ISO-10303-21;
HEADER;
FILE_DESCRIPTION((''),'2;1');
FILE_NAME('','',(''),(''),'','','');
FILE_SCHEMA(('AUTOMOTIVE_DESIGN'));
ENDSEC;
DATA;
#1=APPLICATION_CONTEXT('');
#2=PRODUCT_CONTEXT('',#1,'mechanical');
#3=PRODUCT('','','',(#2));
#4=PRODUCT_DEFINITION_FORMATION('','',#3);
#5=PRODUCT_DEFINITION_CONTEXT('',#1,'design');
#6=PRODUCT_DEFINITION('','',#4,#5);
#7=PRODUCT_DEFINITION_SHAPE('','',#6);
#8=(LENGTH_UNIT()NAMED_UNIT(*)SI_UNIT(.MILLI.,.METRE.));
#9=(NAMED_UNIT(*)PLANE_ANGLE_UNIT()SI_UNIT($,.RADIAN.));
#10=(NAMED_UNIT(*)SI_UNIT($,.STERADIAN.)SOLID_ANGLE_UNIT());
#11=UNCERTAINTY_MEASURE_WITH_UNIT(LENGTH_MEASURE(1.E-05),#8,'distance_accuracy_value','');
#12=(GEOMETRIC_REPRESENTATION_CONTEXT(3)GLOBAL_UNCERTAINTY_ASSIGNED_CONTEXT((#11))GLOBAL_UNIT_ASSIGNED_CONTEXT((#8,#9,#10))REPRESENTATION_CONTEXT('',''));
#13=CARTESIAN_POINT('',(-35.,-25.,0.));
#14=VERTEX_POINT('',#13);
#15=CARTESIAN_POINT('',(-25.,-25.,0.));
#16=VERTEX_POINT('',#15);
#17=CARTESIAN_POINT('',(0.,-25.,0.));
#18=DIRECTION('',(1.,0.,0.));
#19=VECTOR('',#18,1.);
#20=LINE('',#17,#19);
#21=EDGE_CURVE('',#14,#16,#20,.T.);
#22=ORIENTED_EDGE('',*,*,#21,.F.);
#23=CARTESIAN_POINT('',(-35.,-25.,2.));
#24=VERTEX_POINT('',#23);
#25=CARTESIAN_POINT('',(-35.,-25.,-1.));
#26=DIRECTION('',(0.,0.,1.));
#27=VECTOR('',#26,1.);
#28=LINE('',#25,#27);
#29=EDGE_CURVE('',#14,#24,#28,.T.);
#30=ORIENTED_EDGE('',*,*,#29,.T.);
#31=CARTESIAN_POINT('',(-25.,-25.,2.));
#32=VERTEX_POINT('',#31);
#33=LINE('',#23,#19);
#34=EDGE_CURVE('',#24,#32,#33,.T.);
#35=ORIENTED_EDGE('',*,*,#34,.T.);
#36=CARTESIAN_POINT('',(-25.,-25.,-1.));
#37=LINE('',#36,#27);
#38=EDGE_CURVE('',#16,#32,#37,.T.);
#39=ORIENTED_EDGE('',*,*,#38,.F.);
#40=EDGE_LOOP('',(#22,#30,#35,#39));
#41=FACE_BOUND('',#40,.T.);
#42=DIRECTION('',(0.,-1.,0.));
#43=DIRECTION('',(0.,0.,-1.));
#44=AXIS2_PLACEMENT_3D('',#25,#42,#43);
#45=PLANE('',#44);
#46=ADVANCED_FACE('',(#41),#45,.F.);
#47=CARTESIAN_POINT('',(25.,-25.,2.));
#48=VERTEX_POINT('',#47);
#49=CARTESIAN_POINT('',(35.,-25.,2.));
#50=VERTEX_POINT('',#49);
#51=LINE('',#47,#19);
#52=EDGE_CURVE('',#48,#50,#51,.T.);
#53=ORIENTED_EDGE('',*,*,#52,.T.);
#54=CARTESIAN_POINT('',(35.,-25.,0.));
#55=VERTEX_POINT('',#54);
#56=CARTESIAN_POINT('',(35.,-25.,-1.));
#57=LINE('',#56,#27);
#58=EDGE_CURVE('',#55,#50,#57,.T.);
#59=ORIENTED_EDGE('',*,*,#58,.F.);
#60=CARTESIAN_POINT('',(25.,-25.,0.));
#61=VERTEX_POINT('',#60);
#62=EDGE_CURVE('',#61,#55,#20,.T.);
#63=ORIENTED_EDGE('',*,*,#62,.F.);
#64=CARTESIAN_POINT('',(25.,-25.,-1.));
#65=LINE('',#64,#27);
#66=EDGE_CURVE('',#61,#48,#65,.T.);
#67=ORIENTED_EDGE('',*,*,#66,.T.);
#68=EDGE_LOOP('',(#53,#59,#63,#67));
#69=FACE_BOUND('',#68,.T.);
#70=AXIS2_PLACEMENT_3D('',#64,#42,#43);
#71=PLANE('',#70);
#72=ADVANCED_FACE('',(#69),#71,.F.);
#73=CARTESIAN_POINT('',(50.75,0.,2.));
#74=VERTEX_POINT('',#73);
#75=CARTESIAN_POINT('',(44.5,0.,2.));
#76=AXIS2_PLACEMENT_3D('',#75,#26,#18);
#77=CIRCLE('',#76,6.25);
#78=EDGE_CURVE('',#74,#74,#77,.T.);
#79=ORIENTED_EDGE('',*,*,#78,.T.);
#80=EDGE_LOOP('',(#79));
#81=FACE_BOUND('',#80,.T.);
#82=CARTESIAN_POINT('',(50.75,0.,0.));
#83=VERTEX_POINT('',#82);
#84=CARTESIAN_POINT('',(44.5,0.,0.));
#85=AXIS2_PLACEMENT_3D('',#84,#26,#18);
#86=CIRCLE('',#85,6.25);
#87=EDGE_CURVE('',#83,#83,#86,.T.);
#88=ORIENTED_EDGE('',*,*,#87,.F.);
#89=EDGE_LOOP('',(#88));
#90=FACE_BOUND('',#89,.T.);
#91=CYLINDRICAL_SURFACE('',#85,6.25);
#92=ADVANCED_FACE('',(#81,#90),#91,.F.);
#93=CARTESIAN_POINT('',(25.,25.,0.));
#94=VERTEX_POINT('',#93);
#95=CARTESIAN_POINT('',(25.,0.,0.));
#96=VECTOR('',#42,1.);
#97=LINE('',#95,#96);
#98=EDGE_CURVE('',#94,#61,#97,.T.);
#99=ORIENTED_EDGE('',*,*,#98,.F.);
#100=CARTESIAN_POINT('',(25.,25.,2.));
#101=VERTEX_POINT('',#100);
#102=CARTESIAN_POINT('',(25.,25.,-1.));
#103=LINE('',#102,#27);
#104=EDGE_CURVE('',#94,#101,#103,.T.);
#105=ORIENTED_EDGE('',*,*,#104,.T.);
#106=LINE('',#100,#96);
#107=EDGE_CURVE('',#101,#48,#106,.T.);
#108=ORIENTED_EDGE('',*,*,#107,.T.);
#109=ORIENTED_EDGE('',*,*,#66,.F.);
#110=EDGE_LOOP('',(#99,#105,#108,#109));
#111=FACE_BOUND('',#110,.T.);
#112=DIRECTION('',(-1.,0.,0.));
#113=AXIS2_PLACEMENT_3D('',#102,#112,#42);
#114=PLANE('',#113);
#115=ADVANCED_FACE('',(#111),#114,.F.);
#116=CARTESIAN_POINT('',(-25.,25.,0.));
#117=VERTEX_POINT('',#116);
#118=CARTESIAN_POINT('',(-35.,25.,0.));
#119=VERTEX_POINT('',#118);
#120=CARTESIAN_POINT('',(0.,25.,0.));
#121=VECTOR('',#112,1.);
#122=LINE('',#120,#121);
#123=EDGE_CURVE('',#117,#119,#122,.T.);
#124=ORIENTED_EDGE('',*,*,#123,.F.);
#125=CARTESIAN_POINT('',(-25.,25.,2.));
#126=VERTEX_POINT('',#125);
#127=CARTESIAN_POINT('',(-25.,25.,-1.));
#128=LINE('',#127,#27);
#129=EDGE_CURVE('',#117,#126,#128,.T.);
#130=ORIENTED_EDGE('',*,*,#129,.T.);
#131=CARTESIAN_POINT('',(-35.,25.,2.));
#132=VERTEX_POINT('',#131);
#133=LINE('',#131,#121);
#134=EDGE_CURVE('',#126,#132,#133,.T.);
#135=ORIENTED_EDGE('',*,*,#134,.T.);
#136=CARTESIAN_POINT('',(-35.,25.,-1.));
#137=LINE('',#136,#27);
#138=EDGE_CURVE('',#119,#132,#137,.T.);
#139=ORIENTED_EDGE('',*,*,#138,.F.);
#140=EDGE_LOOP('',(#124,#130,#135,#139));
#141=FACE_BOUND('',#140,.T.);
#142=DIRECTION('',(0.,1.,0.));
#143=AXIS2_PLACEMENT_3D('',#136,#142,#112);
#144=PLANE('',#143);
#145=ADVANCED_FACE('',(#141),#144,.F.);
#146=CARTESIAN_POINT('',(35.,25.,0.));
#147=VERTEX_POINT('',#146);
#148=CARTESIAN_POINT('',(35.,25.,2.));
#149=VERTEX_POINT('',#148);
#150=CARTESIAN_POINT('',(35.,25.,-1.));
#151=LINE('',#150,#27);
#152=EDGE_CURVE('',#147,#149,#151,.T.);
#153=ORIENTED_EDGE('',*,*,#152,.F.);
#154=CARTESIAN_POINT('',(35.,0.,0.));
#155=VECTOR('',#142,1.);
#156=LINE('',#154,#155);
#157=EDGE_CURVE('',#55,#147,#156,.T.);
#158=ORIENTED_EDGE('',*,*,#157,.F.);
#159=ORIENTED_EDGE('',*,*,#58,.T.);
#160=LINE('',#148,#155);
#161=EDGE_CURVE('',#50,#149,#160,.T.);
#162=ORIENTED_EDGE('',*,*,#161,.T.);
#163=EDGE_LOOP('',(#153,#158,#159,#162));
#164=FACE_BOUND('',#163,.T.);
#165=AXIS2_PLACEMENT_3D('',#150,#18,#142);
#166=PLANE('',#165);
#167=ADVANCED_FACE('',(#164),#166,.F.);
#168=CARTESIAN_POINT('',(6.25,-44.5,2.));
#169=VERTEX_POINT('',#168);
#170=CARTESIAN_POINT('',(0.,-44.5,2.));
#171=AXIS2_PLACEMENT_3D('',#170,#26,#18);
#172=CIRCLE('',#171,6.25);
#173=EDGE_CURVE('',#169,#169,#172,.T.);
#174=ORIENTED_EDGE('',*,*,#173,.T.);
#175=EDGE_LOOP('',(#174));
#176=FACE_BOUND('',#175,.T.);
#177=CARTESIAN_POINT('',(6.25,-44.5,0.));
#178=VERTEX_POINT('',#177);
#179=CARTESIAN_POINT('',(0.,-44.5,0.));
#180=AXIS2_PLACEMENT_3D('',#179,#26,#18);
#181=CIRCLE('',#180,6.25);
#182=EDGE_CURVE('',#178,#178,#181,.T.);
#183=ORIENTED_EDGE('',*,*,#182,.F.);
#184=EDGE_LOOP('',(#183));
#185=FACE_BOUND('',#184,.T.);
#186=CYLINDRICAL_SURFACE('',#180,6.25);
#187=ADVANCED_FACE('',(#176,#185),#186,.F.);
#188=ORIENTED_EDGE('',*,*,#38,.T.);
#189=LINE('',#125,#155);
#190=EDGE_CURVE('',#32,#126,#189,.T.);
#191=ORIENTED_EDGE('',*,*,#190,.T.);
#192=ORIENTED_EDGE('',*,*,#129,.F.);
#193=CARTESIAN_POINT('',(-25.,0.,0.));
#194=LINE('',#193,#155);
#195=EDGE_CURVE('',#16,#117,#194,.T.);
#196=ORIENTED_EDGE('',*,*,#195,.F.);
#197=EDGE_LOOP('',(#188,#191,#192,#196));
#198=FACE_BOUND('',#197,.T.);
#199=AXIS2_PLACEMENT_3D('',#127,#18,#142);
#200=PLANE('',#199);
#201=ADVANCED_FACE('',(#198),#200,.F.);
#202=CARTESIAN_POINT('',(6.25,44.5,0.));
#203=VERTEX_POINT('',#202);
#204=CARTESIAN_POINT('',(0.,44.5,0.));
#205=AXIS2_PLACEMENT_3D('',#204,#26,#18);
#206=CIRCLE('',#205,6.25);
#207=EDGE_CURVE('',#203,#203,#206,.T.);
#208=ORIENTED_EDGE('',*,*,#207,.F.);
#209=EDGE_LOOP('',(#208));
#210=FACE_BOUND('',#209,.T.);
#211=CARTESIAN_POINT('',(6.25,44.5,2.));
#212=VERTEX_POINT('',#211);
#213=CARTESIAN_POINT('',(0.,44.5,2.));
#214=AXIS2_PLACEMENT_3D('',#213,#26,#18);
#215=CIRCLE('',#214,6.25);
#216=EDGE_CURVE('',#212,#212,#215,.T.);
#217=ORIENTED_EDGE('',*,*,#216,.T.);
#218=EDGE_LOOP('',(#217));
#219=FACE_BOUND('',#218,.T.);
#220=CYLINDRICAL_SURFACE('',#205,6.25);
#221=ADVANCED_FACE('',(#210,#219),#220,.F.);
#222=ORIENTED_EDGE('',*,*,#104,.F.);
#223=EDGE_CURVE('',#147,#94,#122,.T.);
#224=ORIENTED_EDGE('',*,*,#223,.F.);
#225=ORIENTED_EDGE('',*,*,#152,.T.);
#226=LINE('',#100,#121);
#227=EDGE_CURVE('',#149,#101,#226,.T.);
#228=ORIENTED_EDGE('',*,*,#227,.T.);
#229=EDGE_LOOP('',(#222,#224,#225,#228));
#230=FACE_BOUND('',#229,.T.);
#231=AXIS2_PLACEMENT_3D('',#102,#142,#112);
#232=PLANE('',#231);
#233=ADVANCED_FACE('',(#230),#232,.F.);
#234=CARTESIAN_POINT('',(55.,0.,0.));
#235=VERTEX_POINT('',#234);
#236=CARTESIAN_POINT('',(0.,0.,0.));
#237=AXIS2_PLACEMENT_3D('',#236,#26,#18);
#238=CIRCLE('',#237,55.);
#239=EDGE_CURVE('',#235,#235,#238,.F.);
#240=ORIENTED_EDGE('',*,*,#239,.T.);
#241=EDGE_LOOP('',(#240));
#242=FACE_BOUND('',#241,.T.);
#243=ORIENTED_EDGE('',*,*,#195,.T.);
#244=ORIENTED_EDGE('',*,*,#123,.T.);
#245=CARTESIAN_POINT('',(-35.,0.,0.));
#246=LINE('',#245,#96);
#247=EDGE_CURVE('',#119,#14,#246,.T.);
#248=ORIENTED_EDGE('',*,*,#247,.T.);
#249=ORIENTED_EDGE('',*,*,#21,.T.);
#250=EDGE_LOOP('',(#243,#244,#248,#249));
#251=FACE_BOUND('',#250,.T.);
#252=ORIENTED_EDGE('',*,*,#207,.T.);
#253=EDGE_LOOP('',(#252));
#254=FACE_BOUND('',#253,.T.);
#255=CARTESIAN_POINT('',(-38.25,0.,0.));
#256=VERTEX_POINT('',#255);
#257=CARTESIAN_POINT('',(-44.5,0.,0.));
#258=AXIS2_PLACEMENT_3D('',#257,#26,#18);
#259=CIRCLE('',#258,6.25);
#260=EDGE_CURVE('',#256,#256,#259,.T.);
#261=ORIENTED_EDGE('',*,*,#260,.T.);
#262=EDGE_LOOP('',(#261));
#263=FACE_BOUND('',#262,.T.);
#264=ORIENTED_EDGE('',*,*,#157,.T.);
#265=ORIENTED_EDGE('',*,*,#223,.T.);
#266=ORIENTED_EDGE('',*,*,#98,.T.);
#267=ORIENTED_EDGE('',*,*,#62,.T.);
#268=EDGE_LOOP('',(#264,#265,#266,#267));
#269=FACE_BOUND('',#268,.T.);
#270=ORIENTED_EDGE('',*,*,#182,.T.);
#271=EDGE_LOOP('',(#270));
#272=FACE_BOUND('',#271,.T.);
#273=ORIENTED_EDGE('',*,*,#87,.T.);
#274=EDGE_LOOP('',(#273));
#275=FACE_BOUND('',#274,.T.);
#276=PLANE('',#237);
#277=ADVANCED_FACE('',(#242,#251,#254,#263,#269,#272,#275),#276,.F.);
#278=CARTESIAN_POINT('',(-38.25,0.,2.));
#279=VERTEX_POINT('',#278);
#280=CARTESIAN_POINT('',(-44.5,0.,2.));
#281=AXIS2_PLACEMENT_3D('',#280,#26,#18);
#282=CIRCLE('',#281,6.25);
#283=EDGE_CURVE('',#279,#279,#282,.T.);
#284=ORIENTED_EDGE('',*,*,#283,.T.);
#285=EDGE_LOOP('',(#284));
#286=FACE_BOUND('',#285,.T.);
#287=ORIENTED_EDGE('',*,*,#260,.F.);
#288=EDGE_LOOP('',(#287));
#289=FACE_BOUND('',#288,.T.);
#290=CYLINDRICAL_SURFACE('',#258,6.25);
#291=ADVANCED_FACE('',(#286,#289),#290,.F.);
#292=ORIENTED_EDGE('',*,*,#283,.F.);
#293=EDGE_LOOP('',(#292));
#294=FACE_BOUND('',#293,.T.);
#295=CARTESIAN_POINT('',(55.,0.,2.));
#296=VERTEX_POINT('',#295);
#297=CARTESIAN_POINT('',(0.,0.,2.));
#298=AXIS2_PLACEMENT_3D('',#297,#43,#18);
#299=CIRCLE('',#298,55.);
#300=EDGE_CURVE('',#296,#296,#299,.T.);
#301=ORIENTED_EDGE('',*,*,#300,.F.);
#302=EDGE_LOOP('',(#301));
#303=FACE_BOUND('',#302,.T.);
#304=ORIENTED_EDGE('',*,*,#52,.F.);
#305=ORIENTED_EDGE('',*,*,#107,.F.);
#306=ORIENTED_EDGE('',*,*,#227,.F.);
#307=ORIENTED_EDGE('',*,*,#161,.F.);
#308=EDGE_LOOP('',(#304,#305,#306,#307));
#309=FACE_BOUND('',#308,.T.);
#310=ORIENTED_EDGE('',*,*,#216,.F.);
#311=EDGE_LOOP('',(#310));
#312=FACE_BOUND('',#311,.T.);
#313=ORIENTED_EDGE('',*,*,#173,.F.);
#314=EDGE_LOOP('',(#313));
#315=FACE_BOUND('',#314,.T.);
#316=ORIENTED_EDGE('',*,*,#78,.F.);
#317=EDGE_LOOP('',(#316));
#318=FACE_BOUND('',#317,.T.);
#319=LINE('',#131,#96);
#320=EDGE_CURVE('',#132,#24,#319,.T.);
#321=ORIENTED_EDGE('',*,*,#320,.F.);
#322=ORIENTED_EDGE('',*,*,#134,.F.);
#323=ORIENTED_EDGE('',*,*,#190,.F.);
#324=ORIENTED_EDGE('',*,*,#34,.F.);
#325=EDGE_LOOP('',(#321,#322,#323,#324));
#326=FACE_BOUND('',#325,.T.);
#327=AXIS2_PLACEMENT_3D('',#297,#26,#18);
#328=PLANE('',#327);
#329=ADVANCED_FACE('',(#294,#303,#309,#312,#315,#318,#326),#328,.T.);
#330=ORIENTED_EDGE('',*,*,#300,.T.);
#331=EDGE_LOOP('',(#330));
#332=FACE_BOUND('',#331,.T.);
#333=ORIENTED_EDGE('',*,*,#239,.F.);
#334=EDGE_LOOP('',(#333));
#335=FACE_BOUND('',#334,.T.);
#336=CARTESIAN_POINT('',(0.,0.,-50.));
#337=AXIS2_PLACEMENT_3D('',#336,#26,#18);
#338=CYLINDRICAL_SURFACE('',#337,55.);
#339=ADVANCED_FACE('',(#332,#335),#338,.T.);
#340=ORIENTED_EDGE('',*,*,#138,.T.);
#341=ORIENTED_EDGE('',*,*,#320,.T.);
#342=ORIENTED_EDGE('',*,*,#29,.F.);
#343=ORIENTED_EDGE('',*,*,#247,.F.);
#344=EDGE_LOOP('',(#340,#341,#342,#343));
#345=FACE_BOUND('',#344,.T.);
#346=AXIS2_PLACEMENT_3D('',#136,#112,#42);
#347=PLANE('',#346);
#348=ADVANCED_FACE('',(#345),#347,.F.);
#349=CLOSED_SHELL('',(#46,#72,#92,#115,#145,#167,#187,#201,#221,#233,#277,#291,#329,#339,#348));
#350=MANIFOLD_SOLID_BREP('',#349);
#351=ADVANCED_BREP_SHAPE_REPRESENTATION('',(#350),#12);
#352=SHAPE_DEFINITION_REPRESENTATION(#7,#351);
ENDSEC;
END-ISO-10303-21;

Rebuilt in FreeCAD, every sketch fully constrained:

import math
import FreeCAD as App
import Part
import Sketcher
from FreeCAD import Vector
Q = App.Units.Quantity


def add_polygon(sketch, points):
    """Adds a closed chain of lines whose ends are joined by coincident constraints."""
    first, n = sketch.GeometryCount, len(points)
    for a, b in zip(points, points[1:] + points[:1]):
        sketch.addGeometry(Part.LineSegment(App.Vector(*a, 0), App.Vector(*b, 0)), False)
    for i in range(n):
        sketch.addConstraint(Sketcher.Constraint("Coincident", first + i, 2, first + (i + 1) % n, 1))

doc = App.newDocument("Part")
body = doc.addObject("PartDesign::Body", "Body")

# Sketch on XY plane
sketch1 = body.newObject("Sketcher::SketchObject", "Sketch")
sketch1.AttachmentSupport = (doc.getObject("XY_Plane"), [""])
sketch1.MapMode = "FlatFace"
sketch1.addGeometry(Part.Circle(Vector(0, 0, 0), Vector(0, 0, 1), 59), False)
sketch1.addConstraint([
    Sketcher.Constraint("Coincident", 0, 3, -1, 1),
    Sketcher.Constraint("Diameter", 0, Q("118 mm")),
])
pad1 = body.newObject("PartDesign::Pad", "Pad")
pad1.Profile = sketch1
pad1.Length = 2

# Sketch on XY plane
sketch2 = body.newObject("Sketcher::SketchObject", "Sketch001")
sketch2.AttachmentSupport = (doc.getObject("XY_Plane"), [""])
sketch2.MapMode = "FlatFace"
sketch2.AttachmentOffset = App.Placement(Vector(0, 0, 2), App.Rotation())
sketch2.addGeometry([
    Part.Circle(Vector(-22.5, 27.5, 0), Vector(0, 0, 1), 1.375),
    Part.Circle(Vector(22.5, 27.5, 0), Vector(0, 0, 1), 1.375),
    Part.Circle(Vector(22.5, -27.5, 0), Vector(0, 0, 1), 1.375),
    Part.Circle(Vector(-22.5, -27.5, 0), Vector(0, 0, 1), 1.375),
], False)
sketch2.addConstraint([
    Sketcher.Constraint("Equal", 0, 1),
    Sketcher.Constraint("Equal", 1, 2),
    Sketcher.Constraint("Equal", 2, 3),
    Sketcher.Constraint("Symmetric", 0, 3, 2, 3, -1, 1),
    Sketcher.Constraint("Symmetric", 1, 3, 3, 3, -1, 1),
    Sketcher.Constraint("Symmetric", 0, 3, 1, 3, -2),
    Sketcher.Constraint("Diameter", 0, Q("2.75 mm")),
    Sketcher.Constraint("DistanceX", 0, 3, 1, 3, Q("45 mm")),
    Sketcher.Constraint("DistanceY", 2, 3, 1, 3, Q("55 mm")),
])
pad2 = body.newObject("PartDesign::Pad", "Pad001")
pad2.Profile = sketch2
pad2.Length = 7

# Sketch on XY plane
sketch3 = body.newObject("Sketcher::SketchObject", "Sketch002")
sketch3.AttachmentSupport = (doc.getObject("XY_Plane"), [""])
sketch3.MapMode = "FlatFace"
sketch3.AttachmentOffset = App.Placement(Vector(0, 0, 2), App.Rotation())
sketch3.addGeometry([
    Part.Circle(Vector(-22.5, 27.5, 0), Vector(0, 0, 1), 2.375),
    Part.Circle(Vector(22.5, 27.5, 0), Vector(0, 0, 1), 2.375),
    Part.Circle(Vector(-22.5, -27.5, 0), Vector(0, 0, 1), 2.375),
    Part.Circle(Vector(22.5, -27.5, 0), Vector(0, 0, 1), 2.375),
], False)
sketch3.addConstraint([
    Sketcher.Constraint("Equal", 0, 1),
    Sketcher.Constraint("Equal", 1, 2),
    Sketcher.Constraint("Equal", 2, 3),
    Sketcher.Constraint("Symmetric", 1, 3, 2, 3, -1, 1),
    Sketcher.Constraint("Symmetric", 0, 3, 3, 3, -1, 1),
    Sketcher.Constraint("Symmetric", 0, 3, 1, 3, -2),
    Sketcher.Constraint("Diameter", 0, Q("4.75 mm")),
    Sketcher.Constraint("DistanceX", 0, 3, 1, 3, Q("45 mm")),
    Sketcher.Constraint("DistanceY", 2, 3, 0, 3, Q("55 mm")),
])
pad3 = body.newObject("PartDesign::Pad", "Pad002")
pad3.Profile = sketch3
pad3.Length = 2

# Sketch on XY plane
sketch4 = body.newObject("Sketcher::SketchObject", "Sketch003")
sketch4.AttachmentSupport = (doc.getObject("XY_Plane"), [""])
sketch4.MapMode = "FlatFace"
sketch4.AttachmentOffset = App.Placement(Vector(0, 0, 2), App.Rotation())
sketch4.addGeometry([
    Part.ArcOfCircle(Part.Circle(Vector(0, 0, 0), Vector(0, 0, 1), 56), math.radians(85.138595), math.radians(94.861405)),  # 0
    Part.LineSegment(Vector(4.745763, 55.798546, 0), Vector(5, 58.787754, 0)),  # 1
    Part.ArcOfCircle(Part.Circle(Vector(0, 0, 0), Vector(0, 0, 1), 59), math.radians(85.138595), math.radians(94.861405)),  # 2
    Part.LineSegment(Vector(-5, 58.787754, 0), Vector(-4.745763, 55.798546, 0)),  # 3
    Part.LineSegment(Vector(-55.798546, 4.745763, 0), Vector(-58.787754, 5, 0)),  # 4
    Part.ArcOfCircle(Part.Circle(Vector(0, 0, 0), Vector(0, 0, 1), 59), math.radians(175.138595), math.radians(184.861405)),  # 5
    Part.LineSegment(Vector(-58.787754, -5, 0), Vector(-55.798546, -4.745763, 0)),  # 6
    Part.ArcOfCircle(Part.Circle(Vector(0, 0, 0), Vector(0, 0, 1), 56), math.radians(175.138595), math.radians(184.861405)),  # 7
    Part.ArcOfCircle(Part.Circle(Vector(0, 0, 0), Vector(0, 0, 1), 59), math.radians(-4.861405), math.radians(4.861405)),  # 8
    Part.LineSegment(Vector(58.787754, 5, 0), Vector(55.798546, 4.745763, 0)),  # 9
    Part.ArcOfCircle(Part.Circle(Vector(0, 0, 0), Vector(0, 0, 1), 56), math.radians(-4.861405), math.radians(4.861405)),  # 10
    Part.LineSegment(Vector(55.798546, -4.745763, 0), Vector(58.787754, -5, 0)),  # 11
    Part.ArcOfCircle(Part.Circle(Vector(0, 0, 0), Vector(0, 0, 1), 56), math.radians(-94.861405), math.radians(-85.138595)),  # 12
    Part.LineSegment(Vector(-4.745763, -55.798546, 0), Vector(-5, -58.787754, 0)),  # 13
    Part.ArcOfCircle(Part.Circle(Vector(0, 0, 0), Vector(0, 0, 1), 59), math.radians(-94.861405), math.radians(-85.138595)),  # 14
    Part.LineSegment(Vector(5, -58.787754, 0), Vector(4.745763, -55.798546, 0)),  # 15
], False)
sketch4.addConstraint([
    Sketcher.Constraint("Coincident", 0, 1, 1, 1),
    Sketcher.Constraint("Coincident", 1, 2, 2, 1),
    Sketcher.Constraint("Coincident", 2, 2, 3, 1),
    Sketcher.Constraint("Coincident", 3, 2, 0, 2),
    Sketcher.Constraint("Coincident", 4, 2, 5, 1),
    Sketcher.Constraint("Coincident", 5, 2, 6, 1),
    Sketcher.Constraint("Coincident", 6, 2, 7, 2),
    Sketcher.Constraint("Coincident", 7, 1, 4, 1),
    Sketcher.Constraint("Coincident", 8, 2, 9, 1),
    Sketcher.Constraint("Coincident", 9, 2, 10, 2),
    Sketcher.Constraint("Coincident", 10, 1, 11, 1),
    Sketcher.Constraint("Coincident", 11, 2, 8, 1),
    Sketcher.Constraint("Coincident", 12, 1, 13, 1),
    Sketcher.Constraint("Coincident", 13, 2, 14, 1),
    Sketcher.Constraint("Coincident", 14, 2, 15, 1),
    Sketcher.Constraint("Coincident", 15, 2, 12, 2),
    Sketcher.Constraint("Coincident", 0, 3, -1, 1),
    Sketcher.Constraint("Coincident", 2, 3, -1, 1),
    Sketcher.Constraint("Coincident", 5, 3, -1, 1),
    Sketcher.Constraint("Coincident", 7, 3, -1, 1),
    Sketcher.Constraint("Coincident", 8, 3, -1, 1),
    Sketcher.Constraint("Coincident", 10, 3, -1, 1),
    Sketcher.Constraint("Coincident", 12, 3, -1, 1),
    Sketcher.Constraint("Coincident", 14, 3, -1, 1),
    Sketcher.Constraint("Equal", 2, 5),
    Sketcher.Constraint("Equal", 0, 7),
    Sketcher.Constraint("Equal", 5, 8),
    Sketcher.Constraint("Equal", 7, 10),
    Sketcher.Constraint("Equal", 10, 12),
    Sketcher.Constraint("Equal", 8, 14),
    Sketcher.Constraint("Perpendicular", 1, 4),
    Sketcher.Constraint("Perpendicular", 3, 6),
    Sketcher.Constraint("Parallel", 6, 9),
    Sketcher.Constraint("Parallel", 4, 11),
    Sketcher.Constraint("Perpendicular", 11, 13),
    Sketcher.Constraint("Perpendicular", 9, 15),
    Sketcher.Constraint("Horizontal", 1, 2, 2, 2),
    Sketcher.Constraint("Horizontal", 0, 1, 3, 2),
    Sketcher.Constraint("Horizontal", 4, 2, 8, 2),
    Sketcher.Constraint("Horizontal", 6, 2, 10, 1),
    Sketcher.Constraint("Horizontal", 13, 2, 14, 2),
    Sketcher.Constraint("Vertical", 4, 2, 5, 2),
    Sketcher.Constraint("Vertical", 3, 2, 12, 1),
    Sketcher.Constraint("Radius", 0, Q("56 mm")),
    Sketcher.Constraint("Radius", 2, Q("59 mm")),
    Sketcher.Constraint("DistanceX", -1, 1, 1, 2, Q("5 mm")),
    Sketcher.Constraint("DistanceY", -1, 1, 4, 2, Q("5 mm")),
    Sketcher.Constraint("DistanceX", -1, 1, 0, 1, Q("4.745763 mm")),
])
pad4 = body.newObject("PartDesign::Pad", "Pad003")
pad4.Profile = sketch4
pad4.Length = 18

# Sketch on XY plane
sketch5 = body.newObject("Sketcher::SketchObject", "Sketch004")
sketch5.AttachmentSupport = (doc.getObject("XY_Plane"), [""])
sketch5.MapMode = "FlatFace"
sketch5.AttachmentOffset = App.Placement(Vector(0, 0, 2), App.Rotation())
sketch5.addGeometry(Part.Circle(Vector(-40, 0, 0), Vector(0, 0, 1), 7.5), False)
sketch5.addConstraint([
    Sketcher.Constraint("PointOnObject", 0, 3, -1),
    Sketcher.Constraint("Diameter", 0, Q("15 mm")),
    Sketcher.Constraint("DistanceX", 0, 3, -1, 1, Q("40 mm")),
])
pocket1 = body.newObject("PartDesign::Pocket", "Pocket")
pocket1.Profile = sketch5
pocket1.Length = 18

# Sketch on XY plane
sketch6 = body.newObject("Sketcher::SketchObject", "Sketch005")
sketch6.AttachmentSupport = (doc.getObject("XY_Plane"), [""])
sketch6.MapMode = "FlatFace"
sketch6.AttachmentOffset = App.Placement(Vector(0, 0, 20), App.Rotation())
sketch6.addGeometry(Part.Circle(Vector(0, 0, 0), Vector(0, 0, 1), 57.5), False)
sketch6.addConstraint([
    Sketcher.Constraint("Coincident", 0, 3, -1, 1),
    Sketcher.Constraint("Diameter", 0, Q("115 mm")),
])
pocket2 = body.newObject("PartDesign::Pocket", "Pocket001")
pocket2.Profile = sketch6
pocket2.Length = 5

# Sketch on XY plane
sketch7 = body.newObject("Sketcher::SketchObject", "Sketch006")
sketch7.AttachmentSupport = (doc.getObject("XY_Plane"), [""])
sketch7.MapMode = "FlatFace"
sketch7.addGeometry([
    Part.LineSegment(Vector(57.24333, 4.868644, 0), Vector(58.787754, 5, 0)),  # 0
    Part.ArcOfCircle(Part.Circle(Vector(0, 0, 0), Vector(0, 0, 1), 59), math.radians(-4.861405), math.radians(4.861405)),  # 1
    Part.LineSegment(Vector(58.787754, -5, 0), Vector(57.24333, -4.868644, 0)),  # 2
    Part.ArcOfCircle(Part.Circle(Vector(0, 0, 0), Vector(0, 0, 1), 57.45), math.radians(-4.861405), math.radians(4.861405)),  # 3
    Part.ArcOfCircle(Part.Circle(Vector(0, 0, 0), Vector(0, 0, 1), 59), math.radians(85.138595), math.radians(94.861405)),  # 4
    Part.LineSegment(Vector(5, 58.787754, 0), Vector(4.868644, 57.24333, 0)),  # 5
    Part.ArcOfCircle(Part.Circle(Vector(0, 0, 0), Vector(0, 0, 1), 57.45), math.radians(85.138595), math.radians(94.861405)),  # 6
    Part.LineSegment(Vector(-4.868644, 57.24333, 0), Vector(-5, 58.787754, 0)),  # 7
    Part.LineSegment(Vector(4.868644, -57.24333, 0), Vector(5, -58.787754, 0)),  # 8
    Part.ArcOfCircle(Part.Circle(Vector(0, 0, 0), Vector(0, 0, 1), 59), math.radians(-94.861405), math.radians(-85.138595)),  # 9
    Part.LineSegment(Vector(-5, -58.787754, 0), Vector(-4.868644, -57.24333, 0)),  # 10
    Part.ArcOfCircle(Part.Circle(Vector(0, 0, 0), Vector(0, 0, 1), 57.45), math.radians(-94.861405), math.radians(-85.138595)),  # 11
    Part.ArcOfCircle(Part.Circle(Vector(0, 0, 0), Vector(0, 0, 1), 59), math.radians(175.138595), math.radians(184.861405)),  # 12
    Part.LineSegment(Vector(-58.787754, 5, 0), Vector(-57.24333, 4.868644, 0)),  # 13
    Part.ArcOfCircle(Part.Circle(Vector(0, 0, 0), Vector(0, 0, 1), 57.45), math.radians(175.138595), math.radians(184.861405)),  # 14
    Part.LineSegment(Vector(-57.24333, -4.868644, 0), Vector(-58.787754, -5, 0)),  # 15
], False)
sketch7.addConstraint([
    Sketcher.Constraint("Coincident", 0, 2, 1, 2),
    Sketcher.Constraint("Coincident", 1, 1, 2, 1),
    Sketcher.Constraint("Coincident", 2, 2, 3, 1),
    Sketcher.Constraint("Coincident", 3, 2, 0, 1),
    Sketcher.Constraint("Coincident", 4, 1, 5, 1),
    Sketcher.Constraint("Coincident", 5, 2, 6, 1),
    Sketcher.Constraint("Coincident", 6, 2, 7, 1),
    Sketcher.Constraint("Coincident", 7, 2, 4, 2),
    Sketcher.Constraint("Coincident", 8, 2, 9, 2),
    Sketcher.Constraint("Coincident", 9, 1, 10, 1),
    Sketcher.Constraint("Coincident", 10, 2, 11, 1),
    Sketcher.Constraint("Coincident", 11, 2, 8, 1),
    Sketcher.Constraint("Coincident", 12, 1, 13, 1),
    Sketcher.Constraint("Coincident", 13, 2, 14, 1),
    Sketcher.Constraint("Coincident", 14, 2, 15, 1),
    Sketcher.Constraint("Coincident", 15, 2, 12, 2),
    Sketcher.Constraint("Coincident", 1, 3, -1, 1),
    Sketcher.Constraint("Coincident", 3, 3, -1, 1),
    Sketcher.Constraint("Coincident", 4, 3, -1, 1),
    Sketcher.Constraint("Coincident", 6, 3, -1, 1),
    Sketcher.Constraint("Coincident", 9, 3, -1, 1),
    Sketcher.Constraint("Coincident", 11, 3, -1, 1),
    Sketcher.Constraint("Coincident", 12, 3, -1, 1),
    Sketcher.Constraint("Coincident", 14, 3, -1, 1),
    Sketcher.Constraint("Equal", 1, 4),
    Sketcher.Constraint("Equal", 3, 6),
    Sketcher.Constraint("Equal", 4, 9),
    Sketcher.Constraint("Equal", 6, 11),
    Sketcher.Constraint("Equal", 9, 12),
    Sketcher.Constraint("Equal", 11, 14),
    Sketcher.Constraint("Perpendicular", 2, 5),
    Sketcher.Constraint("Perpendicular", 0, 7),
    Sketcher.Constraint("Parallel", 7, 8),
    Sketcher.Constraint("Parallel", 5, 10),
    Sketcher.Constraint("Perpendicular", 10, 13),
    Sketcher.Constraint("Perpendicular", 8, 15),
    Sketcher.Constraint("Horizontal", 5, 2, 6, 2),
    Sketcher.Constraint("Horizontal", 4, 1, 7, 2),
    Sketcher.Constraint("Horizontal", 8, 2, 9, 1),
    Sketcher.Constraint("Horizontal", 0, 2, 12, 1),
    Sketcher.Constraint("Horizontal", 2, 2, 14, 2),
    Sketcher.Constraint("Vertical", 0, 2, 1, 1),
    Sketcher.Constraint("Vertical", 4, 1, 8, 2),
    Sketcher.Constraint("Radius", 1, Q("59 mm")),
    Sketcher.Constraint("Radius", 3, Q("57.45 mm")),
    Sketcher.Constraint("DistanceY", -1, 1, 0, 2, Q("5 mm")),
    Sketcher.Constraint("DistanceX", -1, 1, 4, 1, Q("5 mm")),
    Sketcher.Constraint("DistanceX", -1, 1, 2, 2, Q("57.24333 mm")),
])
pocket3 = body.newObject("PartDesign::Pocket", "Pocket002")
pocket3.Profile = sketch7
pocket3.Length = 5.5
pocket3.Reversed = True

# Sketch on XY plane
sketch8 = body.newObject("Sketcher::SketchObject", "Sketch007")
sketch8.AttachmentSupport = (doc.getObject("XY_Plane"), [""])
sketch8.MapMode = "FlatFace"
sketch8.addGeometry([
    Part.Circle(Vector(0, 0, 0), Vector(0, 0, 1), 89.714021),
    Part.Circle(Vector(0, 0, 0), Vector(0, 0, 1), 57),
], False)
sketch8.addConstraint([
    Sketcher.Constraint("Coincident", 0, 3, -1, 1),
    Sketcher.Constraint("Coincident", 1, 3, -1, 1),
    Sketcher.Constraint("Diameter", 1, Q("114 mm")),
    Sketcher.Constraint("Diameter", 0, Q("179.428042 mm")),
])
pocket4 = body.newObject("PartDesign::Pocket", "Pocket003")
pocket4.Profile = sketch8
pocket4.Length = 22
pocket4.Reversed = True

# Sketch on XY plane
sketch9 = body.newObject("Sketcher::SketchObject", "Sketch008")
sketch9.AttachmentSupport = (doc.getObject("XY_Plane"), [""])
sketch9.MapMode = "FlatFace"
sketch9.AttachmentOffset = App.Placement(Vector(0, 0, 2), App.Rotation())
sketch9.addGeometry([
    Part.Circle(Vector(0, 0, 0), Vector(0, 0, 1), 62.462023),  # 0
    Part.LineSegment(Vector(56.794949, 4.830508, 0), Vector(55.798546, 4.745763, 0)),  # 1
    Part.ArcOfCircle(Part.Circle(Vector(0, 0, 0), Vector(0, 0, 1), 56), math.radians(-4.861405), math.radians(4.861405)),  # 2
    Part.LineSegment(Vector(55.798546, -4.745763, 0), Vector(56.794949, -4.830508, 0)),  # 3
    Part.ArcOfCircle(Part.Circle(Vector(0, 0, 0), Vector(0, 0, 1), 57), math.radians(-85.138595), math.radians(-4.861405)),  # 4
    Part.LineSegment(Vector(4.830508, -56.794949, 0), Vector(4.745763, -55.798546, 0)),  # 5
    Part.ArcOfCircle(Part.Circle(Vector(0, 0, 0), Vector(0, 0, 1), 56), math.radians(-94.861405), math.radians(-85.138595)),  # 6
    Part.LineSegment(Vector(-4.745763, -55.798546, 0), Vector(-4.830508, -56.794949, 0)),  # 7
    Part.ArcOfCircle(Part.Circle(Vector(0, 0, 0), Vector(0, 0, 1), 57), math.radians(-175.138595), math.radians(-94.861405)),  # 8
    Part.LineSegment(Vector(-56.794949, -4.830508, 0), Vector(-55.798546, -4.745763, 0)),  # 9
    Part.ArcOfCircle(Part.Circle(Vector(0, 0, 0), Vector(0, 0, 1), 56), math.radians(175.138595), math.radians(184.861405)),  # 10
    Part.LineSegment(Vector(-55.798546, 4.745763, 0), Vector(-56.794949, 4.830508, 0)),  # 11
    Part.ArcOfCircle(Part.Circle(Vector(0, 0, 0), Vector(0, 0, 1), 57), math.radians(94.861405), math.radians(175.138595)),  # 12
    Part.LineSegment(Vector(-4.830508, 56.794949, 0), Vector(-4.745763, 55.798546, 0)),  # 13
    Part.ArcOfCircle(Part.Circle(Vector(0, 0, 0), Vector(0, 0, 1), 56), math.radians(85.138595), math.radians(94.861405)),  # 14
    Part.LineSegment(Vector(4.745763, 55.798546, 0), Vector(4.830508, 56.794949, 0)),  # 15
    Part.ArcOfCircle(Part.Circle(Vector(0, 0, 0), Vector(0, 0, 1), 57), math.radians(4.861405), math.radians(85.138595)),  # 16
], False)
sketch9.addConstraint([
    Sketcher.Constraint("Coincident", 1, 2, 2, 2),
    Sketcher.Constraint("Coincident", 2, 1, 3, 1),
    Sketcher.Constraint("Coincident", 3, 2, 4, 2),
    Sketcher.Constraint("Coincident", 4, 1, 5, 1),
    Sketcher.Constraint("Coincident", 5, 2, 6, 2),
    Sketcher.Constraint("Coincident", 6, 1, 7, 1),
    Sketcher.Constraint("Coincident", 7, 2, 8, 2),
    Sketcher.Constraint("Coincident", 8, 1, 9, 1),
    Sketcher.Constraint("Coincident", 9, 2, 10, 2),
    Sketcher.Constraint("Coincident", 10, 1, 11, 1),
    Sketcher.Constraint("Coincident", 11, 2, 12, 2),
    Sketcher.Constraint("Coincident", 12, 1, 13, 1),
    Sketcher.Constraint("Coincident", 13, 2, 14, 2),
    Sketcher.Constraint("Coincident", 14, 1, 15, 1),
    Sketcher.Constraint("Coincident", 15, 2, 16, 2),
    Sketcher.Constraint("Coincident", 16, 1, 1, 1),
    Sketcher.Constraint("Coincident", 0, 3, -1, 1),
    Sketcher.Constraint("Coincident", 2, 3, -1, 1),
    Sketcher.Constraint("Coincident", 4, 3, -1, 1),
    Sketcher.Constraint("Coincident", 6, 3, -1, 1),
    Sketcher.Constraint("Coincident", 8, 3, -1, 1),
    Sketcher.Constraint("Coincident", 10, 3, -1, 1),
    Sketcher.Constraint("Coincident", 12, 3, -1, 1),
    Sketcher.Constraint("Coincident", 14, 3, -1, 1),
    Sketcher.Constraint("Coincident", 16, 3, -1, 1),
    Sketcher.Constraint("Equal", 2, 6),
    Sketcher.Constraint("Equal", 4, 8),
    Sketcher.Constraint("Equal", 6, 10),
    Sketcher.Constraint("Equal", 8, 12),
    Sketcher.Constraint("Equal", 10, 14),
    Sketcher.Constraint("Equal", 12, 16),
    Sketcher.Constraint("Perpendicular", 1, 5),
    Sketcher.Constraint("Perpendicular", 3, 7),
    Sketcher.Constraint("Perpendicular", 5, 9),
    Sketcher.Constraint("Perpendicular", 7, 11),
    Sketcher.Constraint("Perpendicular", 9, 13),
    Sketcher.Constraint("Perpendicular", 11, 15),
    Sketcher.Constraint("Horizontal", 5, 2, 6, 1),
    Sketcher.Constraint("Horizontal", 4, 1, 7, 2),
    Sketcher.Constraint("Horizontal", 3, 2, 8, 1),
    Sketcher.Constraint("Horizontal", 1, 2, 10, 1),
    Sketcher.Constraint("Horizontal", 13, 2, 14, 1),
    Sketcher.Constraint("Vertical", 1, 2, 2, 1),
    Sketcher.Constraint("Vertical", 7, 2, 12, 1),
    Sketcher.Constraint("Radius", 2, Q("56 mm")),
    Sketcher.Constraint("Radius", 4, Q("57 mm")),
    Sketcher.Constraint("Diameter", 0, Q("124.924046 mm")),
    Sketcher.Constraint("DistanceX", -1, 1, 3, 2, Q("56.794949 mm")),
    Sketcher.Constraint("DistanceX", -1, 1, 4, 1, Q("4.830508 mm")),
    Sketcher.Constraint("DistanceY", 3, 2, 1, 2, Q("9.576271 mm")),
])
pocket5 = body.newObject("PartDesign::Pocket", "Pocket004")
pocket5.Profile = sketch9
pocket5.Length = 52
pocket5.Reversed = True

# Sketch on XY plane
sketch10 = body.newObject("Sketcher::SketchObject", "Sketch009")
sketch10.AttachmentSupport = (doc.getObject("XY_Plane"), [""])
sketch10.MapMode = "FlatFace"
sketch10.AttachmentOffset = App.Placement(Vector(0, 0, 2), App.Rotation())
sketch10.addGeometry([
    Part.LineSegment(Vector(5, 57, 0), Vector(-5, 57, 0)),  # 0
    Part.LineSegment(Vector(-5, 57, 0), Vector(-4.806106, 54.78961, 0)),  # 1
    Part.ArcOfCircle(Part.Circle(Vector(0, 0, 0), Vector(0, 0, 1), 55), math.radians(84.986886), math.radians(95.013114)),  # 2
    Part.LineSegment(Vector(4.806106, 54.78961, 0), Vector(5, 57, 0)),  # 3
    Part.LineSegment(Vector(57, 5, 0), Vector(54.78961, 4.806106, 0)),  # 4
    Part.ArcOfCircle(Part.Circle(Vector(0, 0, 0), Vector(0, 0, 1), 55), math.radians(-5.013114), math.radians(5.013114)),  # 5
    Part.LineSegment(Vector(54.78961, -4.806106, 0), Vector(57, -5, 0)),  # 6
    Part.LineSegment(Vector(57, -5, 0), Vector(57, 5, 0)),  # 7
    Part.LineSegment(Vector(5, -57, 0), Vector(4.806106, -54.78961, 0)),  # 8
    Part.ArcOfCircle(Part.Circle(Vector(0, 0, 0), Vector(0, 0, 1), 55), math.radians(-95.013114), math.radians(-84.986886)),  # 9
    Part.LineSegment(Vector(-4.806106, -54.78961, 0), Vector(-5, -57, 0)),  # 10
    Part.LineSegment(Vector(-5, -57, 0), Vector(5, -57, 0)),  # 11
    Part.LineSegment(Vector(-57, -5, 0), Vector(-54.78961, -4.806106, 0)),  # 12
    Part.ArcOfCircle(Part.Circle(Vector(0, 0, 0), Vector(0, 0, 1), 55), math.radians(174.986886), math.radians(185.013114)),  # 13
    Part.LineSegment(Vector(-54.78961, 4.806106, 0), Vector(-57, 5, 0)),  # 14
    Part.LineSegment(Vector(-57, 5, 0), Vector(-57, -5, 0)),  # 15
], False)
sketch10.addConstraint([
    Sketcher.Constraint("Coincident", 0, 2, 1, 1),
    Sketcher.Constraint("Coincident", 1, 2, 2, 2),
    Sketcher.Constraint("Coincident", 2, 1, 3, 1),
    Sketcher.Constraint("Coincident", 3, 2, 0, 1),
    Sketcher.Constraint("Coincident", 4, 2, 5, 2),
    Sketcher.Constraint("Coincident", 5, 1, 6, 1),
    Sketcher.Constraint("Coincident", 6, 2, 7, 1),
    Sketcher.Constraint("Coincident", 7, 2, 4, 1),
    Sketcher.Constraint("Coincident", 8, 2, 9, 2),
    Sketcher.Constraint("Coincident", 9, 1, 10, 1),
    Sketcher.Constraint("Coincident", 10, 2, 11, 1),
    Sketcher.Constraint("Coincident", 11, 2, 8, 1),
    Sketcher.Constraint("Coincident", 12, 2, 13, 2),
    Sketcher.Constraint("Coincident", 13, 1, 14, 1),
    Sketcher.Constraint("Coincident", 14, 2, 15, 1),
    Sketcher.Constraint("Coincident", 15, 2, 12, 1),
    Sketcher.Constraint("Horizontal", 0),
    Sketcher.Constraint("Vertical", 7),
    Sketcher.Constraint("Horizontal", 11),
    Sketcher.Constraint("Vertical", 15),
    Sketcher.Constraint("Coincident", 2, 3, -1, 1),
    Sketcher.Constraint("Coincident", 5, 3, -1, 1),
    Sketcher.Constraint("Coincident", 9, 3, -1, 1),
    Sketcher.Constraint("Coincident", 13, 3, -1, 1),
    Sketcher.Constraint("Equal", 2, 5),
    Sketcher.Constraint("Equal", 5, 9),
    Sketcher.Constraint("Equal", 9, 13),
    Sketcher.Constraint("Symmetric", 3, 2, 10, 2, -1, 1),
    Sketcher.Constraint("Symmetric", 6, 2, 14, 2, -1, 1),
    Sketcher.Constraint("Perpendicular", 1, 4),
    Sketcher.Constraint("Perpendicular", 3, 6),
    Sketcher.Constraint("Perpendicular", 4, 8),
    Sketcher.Constraint("Perpendicular", 6, 10),
    Sketcher.Constraint("Perpendicular", 8, 12),
    Sketcher.Constraint("Perpendicular", 10, 14),
    Sketcher.Constraint("Horizontal", 1, 2, 2, 1),
    Sketcher.Constraint("Horizontal", 8, 2, 9, 1),
    Sketcher.Constraint("Horizontal", 5, 1, 12, 2),
    Sketcher.Constraint("Horizontal", 4, 2, 13, 1),
    Sketcher.Constraint("Horizontal", 7, 2, 14, 2),
    Sketcher.Constraint("Equal", 11, 7),
    Sketcher.Constraint("Equal", 3, 4),
    Sketcher.Constraint("Radius", 2, Q("55 mm")),
    Sketcher.Constraint("DistanceX", 0, 2, 0, 1, Q("10 mm")),
    Sketcher.Constraint("DistanceY", -1, 1, 0, 2, Q("57 mm")),
    Sketcher.Constraint("DistanceY", -1, 1, 1, 2, Q("54.78961 mm")),
])
pocket6 = body.newObject("PartDesign::Pocket", "Pocket005")
pocket6.Profile = sketch10
pocket6.Length = 52

# Sketch on XY plane
sketch11 = body.newObject("Sketcher::SketchObject", "Sketch010")
sketch11.AttachmentSupport = (doc.getObject("XY_Plane"), [""])
sketch11.MapMode = "FlatFace"
sketch11.AttachmentOffset = App.Placement(Vector(0, 0, 2), App.Rotation())
sketch11.addGeometry([
    Part.Circle(Vector(0, 0, 0), Vector(0, 0, 1), 80.622465),
    Part.Circle(Vector(0, 0, 0), Vector(0, 0, 1), 55),
], False)
sketch11.addConstraint([
    Sketcher.Constraint("Coincident", 0, 3, -1, 1),
    Sketcher.Constraint("Coincident", 1, 3, -1, 1),
    Sketcher.Constraint("Diameter", 1, Q("110 mm")),
    Sketcher.Constraint("Diameter", 0, Q("161.24493 mm")),
])
pocket7 = body.newObject("PartDesign::Pocket", "Pocket006")
pocket7.Profile = sketch11
pocket7.Length = 10

# Sketch on XY plane
sketch12 = body.newObject("Sketcher::SketchObject", "Sketch011")
sketch12.AttachmentSupport = (doc.getObject("XY_Plane"), [""])
sketch12.MapMode = "FlatFace"
sketch12.AttachmentOffset = App.Placement(Vector(0, 0, 2), App.Rotation())
sketch12.addGeometry(Part.Circle(Vector(0, 0, 0), Vector(0, 0, 1), 55), False)
sketch12.addConstraint([
    Sketcher.Constraint("Coincident", 0, 3, -1, 1),
    Sketcher.Constraint("Diameter", 0, Q("110 mm")),
])
pad5 = body.newObject("PartDesign::Pad", "Pad004")
pad5.Profile = sketch12
pad5.Length = 2
pad5.Reversed = True

# Sketch on XY plane
sketch13 = body.newObject("Sketcher::SketchObject", "Sketch012")
sketch13.AttachmentSupport = (doc.getObject("XY_Plane"), [""])
sketch13.MapMode = "FlatFace"
sketch13.AttachmentOffset = App.Placement(Vector(0, 0, 2), App.Rotation())
sketch13.addGeometry([
    Part.Circle(Vector(0, 44.5, 0), Vector(0, 0, 1), 6.25),
    Part.Circle(Vector(44.5, 0, 0), Vector(0, 0, 1), 6.25),
    Part.Circle(Vector(0, -44.5, 0), Vector(0, 0, 1), 6.25),
    Part.Circle(Vector(-44.5, 0, 0), Vector(0, 0, 1), 6.25),
], False)
sketch13.addConstraint([
    Sketcher.Constraint("Equal", 0, 1),
    Sketcher.Constraint("Equal", 1, 2),
    Sketcher.Constraint("Equal", 2, 3),
    Sketcher.Constraint("Symmetric", 0, 3, 2, 3, -1, 1),
    Sketcher.Constraint("Symmetric", 1, 3, 3, 3, -1, 1),
    Sketcher.Constraint("PointOnObject", 0, 3, -2),
    Sketcher.Constraint("PointOnObject", 1, 3, -1),
    Sketcher.Constraint("Diameter", 0, Q("12.5 mm")),
    Sketcher.Constraint("DistanceY", 2, 3, 0, 3, Q("89 mm")),
    Sketcher.Constraint("DistanceX", 3, 3, 1, 3, Q("89 mm")),
])
pocket8 = body.newObject("PartDesign::Pocket", "Pocket007")
pocket8.Profile = sketch13
pocket8.Length = 2

# Sketch on XY plane
sketch14 = body.newObject("Sketcher::SketchObject", "Sketch013")
sketch14.AttachmentSupport = (doc.getObject("XY_Plane"), [""])
sketch14.MapMode = "FlatFace"
sketch14.AttachmentOffset = App.Placement(Vector(0, 0, 2), App.Rotation())
add_polygon(sketch14, [(25, 25), (25, -25), (35, -25), (35, 25)])  # lines 0-3
add_polygon(sketch14, [(-35, 25), (-35, -25), (-25, -25), (-25, 25)])  # lines 4-7
sketch14.addConstraint([
    Sketcher.Constraint("Vertical", 0),
    Sketcher.Constraint("Horizontal", 1),
    Sketcher.Constraint("Vertical", 2),
    Sketcher.Constraint("Horizontal", 3),
    Sketcher.Constraint("Vertical", 4),
    Sketcher.Constraint("Horizontal", 5),
    Sketcher.Constraint("Vertical", 6),
    Sketcher.Constraint("Horizontal", 7),
    Sketcher.Constraint("Symmetric", 2, 2, 4, 2, -1, 1),
    Sketcher.Constraint("Symmetric", 0, 2, 6, 2, -1, 1),
    Sketcher.Constraint("Horizontal", 1, 2, 4, 2),
    Sketcher.Constraint("DistanceX", 1, 1, 1, 2, Q("10 mm")),
    Sketcher.Constraint("DistanceY", 0, 2, 0, 1, Q("50 mm")),
    Sketcher.Constraint("DistanceX", -1, 1, 0, 2, Q("25 mm")),
])
pocket9 = body.newObject("PartDesign::Pocket", "Pocket008")
pocket9.Profile = sketch14
pocket9.Length = 3

# Sketch on XY plane
sketch15 = body.newObject("Sketcher::SketchObject", "Sketch014")
sketch15.AttachmentSupport = (doc.getObject("XY_Plane"), [""])
sketch15.MapMode = "FlatFace"
sketch15.AttachmentOffset = App.Placement(Vector(0, 0, 2), App.Rotation())
sketch15.addGeometry(Part.Circle(Vector(0, 0, 0), Vector(0, 0, 1), 40.394643), False)
sketch15.addConstraint([
    Sketcher.Constraint("Coincident", 0, 3, -1, 1),
    Sketcher.Constraint("Diameter", 0, Q("80.789285 mm")),
])
pocket10 = body.newObject("PartDesign::Pocket", "Pocket009")
pocket10.Profile = sketch15
pocket10.Length = 10
pocket10.Reversed = True

doc.recompute()
